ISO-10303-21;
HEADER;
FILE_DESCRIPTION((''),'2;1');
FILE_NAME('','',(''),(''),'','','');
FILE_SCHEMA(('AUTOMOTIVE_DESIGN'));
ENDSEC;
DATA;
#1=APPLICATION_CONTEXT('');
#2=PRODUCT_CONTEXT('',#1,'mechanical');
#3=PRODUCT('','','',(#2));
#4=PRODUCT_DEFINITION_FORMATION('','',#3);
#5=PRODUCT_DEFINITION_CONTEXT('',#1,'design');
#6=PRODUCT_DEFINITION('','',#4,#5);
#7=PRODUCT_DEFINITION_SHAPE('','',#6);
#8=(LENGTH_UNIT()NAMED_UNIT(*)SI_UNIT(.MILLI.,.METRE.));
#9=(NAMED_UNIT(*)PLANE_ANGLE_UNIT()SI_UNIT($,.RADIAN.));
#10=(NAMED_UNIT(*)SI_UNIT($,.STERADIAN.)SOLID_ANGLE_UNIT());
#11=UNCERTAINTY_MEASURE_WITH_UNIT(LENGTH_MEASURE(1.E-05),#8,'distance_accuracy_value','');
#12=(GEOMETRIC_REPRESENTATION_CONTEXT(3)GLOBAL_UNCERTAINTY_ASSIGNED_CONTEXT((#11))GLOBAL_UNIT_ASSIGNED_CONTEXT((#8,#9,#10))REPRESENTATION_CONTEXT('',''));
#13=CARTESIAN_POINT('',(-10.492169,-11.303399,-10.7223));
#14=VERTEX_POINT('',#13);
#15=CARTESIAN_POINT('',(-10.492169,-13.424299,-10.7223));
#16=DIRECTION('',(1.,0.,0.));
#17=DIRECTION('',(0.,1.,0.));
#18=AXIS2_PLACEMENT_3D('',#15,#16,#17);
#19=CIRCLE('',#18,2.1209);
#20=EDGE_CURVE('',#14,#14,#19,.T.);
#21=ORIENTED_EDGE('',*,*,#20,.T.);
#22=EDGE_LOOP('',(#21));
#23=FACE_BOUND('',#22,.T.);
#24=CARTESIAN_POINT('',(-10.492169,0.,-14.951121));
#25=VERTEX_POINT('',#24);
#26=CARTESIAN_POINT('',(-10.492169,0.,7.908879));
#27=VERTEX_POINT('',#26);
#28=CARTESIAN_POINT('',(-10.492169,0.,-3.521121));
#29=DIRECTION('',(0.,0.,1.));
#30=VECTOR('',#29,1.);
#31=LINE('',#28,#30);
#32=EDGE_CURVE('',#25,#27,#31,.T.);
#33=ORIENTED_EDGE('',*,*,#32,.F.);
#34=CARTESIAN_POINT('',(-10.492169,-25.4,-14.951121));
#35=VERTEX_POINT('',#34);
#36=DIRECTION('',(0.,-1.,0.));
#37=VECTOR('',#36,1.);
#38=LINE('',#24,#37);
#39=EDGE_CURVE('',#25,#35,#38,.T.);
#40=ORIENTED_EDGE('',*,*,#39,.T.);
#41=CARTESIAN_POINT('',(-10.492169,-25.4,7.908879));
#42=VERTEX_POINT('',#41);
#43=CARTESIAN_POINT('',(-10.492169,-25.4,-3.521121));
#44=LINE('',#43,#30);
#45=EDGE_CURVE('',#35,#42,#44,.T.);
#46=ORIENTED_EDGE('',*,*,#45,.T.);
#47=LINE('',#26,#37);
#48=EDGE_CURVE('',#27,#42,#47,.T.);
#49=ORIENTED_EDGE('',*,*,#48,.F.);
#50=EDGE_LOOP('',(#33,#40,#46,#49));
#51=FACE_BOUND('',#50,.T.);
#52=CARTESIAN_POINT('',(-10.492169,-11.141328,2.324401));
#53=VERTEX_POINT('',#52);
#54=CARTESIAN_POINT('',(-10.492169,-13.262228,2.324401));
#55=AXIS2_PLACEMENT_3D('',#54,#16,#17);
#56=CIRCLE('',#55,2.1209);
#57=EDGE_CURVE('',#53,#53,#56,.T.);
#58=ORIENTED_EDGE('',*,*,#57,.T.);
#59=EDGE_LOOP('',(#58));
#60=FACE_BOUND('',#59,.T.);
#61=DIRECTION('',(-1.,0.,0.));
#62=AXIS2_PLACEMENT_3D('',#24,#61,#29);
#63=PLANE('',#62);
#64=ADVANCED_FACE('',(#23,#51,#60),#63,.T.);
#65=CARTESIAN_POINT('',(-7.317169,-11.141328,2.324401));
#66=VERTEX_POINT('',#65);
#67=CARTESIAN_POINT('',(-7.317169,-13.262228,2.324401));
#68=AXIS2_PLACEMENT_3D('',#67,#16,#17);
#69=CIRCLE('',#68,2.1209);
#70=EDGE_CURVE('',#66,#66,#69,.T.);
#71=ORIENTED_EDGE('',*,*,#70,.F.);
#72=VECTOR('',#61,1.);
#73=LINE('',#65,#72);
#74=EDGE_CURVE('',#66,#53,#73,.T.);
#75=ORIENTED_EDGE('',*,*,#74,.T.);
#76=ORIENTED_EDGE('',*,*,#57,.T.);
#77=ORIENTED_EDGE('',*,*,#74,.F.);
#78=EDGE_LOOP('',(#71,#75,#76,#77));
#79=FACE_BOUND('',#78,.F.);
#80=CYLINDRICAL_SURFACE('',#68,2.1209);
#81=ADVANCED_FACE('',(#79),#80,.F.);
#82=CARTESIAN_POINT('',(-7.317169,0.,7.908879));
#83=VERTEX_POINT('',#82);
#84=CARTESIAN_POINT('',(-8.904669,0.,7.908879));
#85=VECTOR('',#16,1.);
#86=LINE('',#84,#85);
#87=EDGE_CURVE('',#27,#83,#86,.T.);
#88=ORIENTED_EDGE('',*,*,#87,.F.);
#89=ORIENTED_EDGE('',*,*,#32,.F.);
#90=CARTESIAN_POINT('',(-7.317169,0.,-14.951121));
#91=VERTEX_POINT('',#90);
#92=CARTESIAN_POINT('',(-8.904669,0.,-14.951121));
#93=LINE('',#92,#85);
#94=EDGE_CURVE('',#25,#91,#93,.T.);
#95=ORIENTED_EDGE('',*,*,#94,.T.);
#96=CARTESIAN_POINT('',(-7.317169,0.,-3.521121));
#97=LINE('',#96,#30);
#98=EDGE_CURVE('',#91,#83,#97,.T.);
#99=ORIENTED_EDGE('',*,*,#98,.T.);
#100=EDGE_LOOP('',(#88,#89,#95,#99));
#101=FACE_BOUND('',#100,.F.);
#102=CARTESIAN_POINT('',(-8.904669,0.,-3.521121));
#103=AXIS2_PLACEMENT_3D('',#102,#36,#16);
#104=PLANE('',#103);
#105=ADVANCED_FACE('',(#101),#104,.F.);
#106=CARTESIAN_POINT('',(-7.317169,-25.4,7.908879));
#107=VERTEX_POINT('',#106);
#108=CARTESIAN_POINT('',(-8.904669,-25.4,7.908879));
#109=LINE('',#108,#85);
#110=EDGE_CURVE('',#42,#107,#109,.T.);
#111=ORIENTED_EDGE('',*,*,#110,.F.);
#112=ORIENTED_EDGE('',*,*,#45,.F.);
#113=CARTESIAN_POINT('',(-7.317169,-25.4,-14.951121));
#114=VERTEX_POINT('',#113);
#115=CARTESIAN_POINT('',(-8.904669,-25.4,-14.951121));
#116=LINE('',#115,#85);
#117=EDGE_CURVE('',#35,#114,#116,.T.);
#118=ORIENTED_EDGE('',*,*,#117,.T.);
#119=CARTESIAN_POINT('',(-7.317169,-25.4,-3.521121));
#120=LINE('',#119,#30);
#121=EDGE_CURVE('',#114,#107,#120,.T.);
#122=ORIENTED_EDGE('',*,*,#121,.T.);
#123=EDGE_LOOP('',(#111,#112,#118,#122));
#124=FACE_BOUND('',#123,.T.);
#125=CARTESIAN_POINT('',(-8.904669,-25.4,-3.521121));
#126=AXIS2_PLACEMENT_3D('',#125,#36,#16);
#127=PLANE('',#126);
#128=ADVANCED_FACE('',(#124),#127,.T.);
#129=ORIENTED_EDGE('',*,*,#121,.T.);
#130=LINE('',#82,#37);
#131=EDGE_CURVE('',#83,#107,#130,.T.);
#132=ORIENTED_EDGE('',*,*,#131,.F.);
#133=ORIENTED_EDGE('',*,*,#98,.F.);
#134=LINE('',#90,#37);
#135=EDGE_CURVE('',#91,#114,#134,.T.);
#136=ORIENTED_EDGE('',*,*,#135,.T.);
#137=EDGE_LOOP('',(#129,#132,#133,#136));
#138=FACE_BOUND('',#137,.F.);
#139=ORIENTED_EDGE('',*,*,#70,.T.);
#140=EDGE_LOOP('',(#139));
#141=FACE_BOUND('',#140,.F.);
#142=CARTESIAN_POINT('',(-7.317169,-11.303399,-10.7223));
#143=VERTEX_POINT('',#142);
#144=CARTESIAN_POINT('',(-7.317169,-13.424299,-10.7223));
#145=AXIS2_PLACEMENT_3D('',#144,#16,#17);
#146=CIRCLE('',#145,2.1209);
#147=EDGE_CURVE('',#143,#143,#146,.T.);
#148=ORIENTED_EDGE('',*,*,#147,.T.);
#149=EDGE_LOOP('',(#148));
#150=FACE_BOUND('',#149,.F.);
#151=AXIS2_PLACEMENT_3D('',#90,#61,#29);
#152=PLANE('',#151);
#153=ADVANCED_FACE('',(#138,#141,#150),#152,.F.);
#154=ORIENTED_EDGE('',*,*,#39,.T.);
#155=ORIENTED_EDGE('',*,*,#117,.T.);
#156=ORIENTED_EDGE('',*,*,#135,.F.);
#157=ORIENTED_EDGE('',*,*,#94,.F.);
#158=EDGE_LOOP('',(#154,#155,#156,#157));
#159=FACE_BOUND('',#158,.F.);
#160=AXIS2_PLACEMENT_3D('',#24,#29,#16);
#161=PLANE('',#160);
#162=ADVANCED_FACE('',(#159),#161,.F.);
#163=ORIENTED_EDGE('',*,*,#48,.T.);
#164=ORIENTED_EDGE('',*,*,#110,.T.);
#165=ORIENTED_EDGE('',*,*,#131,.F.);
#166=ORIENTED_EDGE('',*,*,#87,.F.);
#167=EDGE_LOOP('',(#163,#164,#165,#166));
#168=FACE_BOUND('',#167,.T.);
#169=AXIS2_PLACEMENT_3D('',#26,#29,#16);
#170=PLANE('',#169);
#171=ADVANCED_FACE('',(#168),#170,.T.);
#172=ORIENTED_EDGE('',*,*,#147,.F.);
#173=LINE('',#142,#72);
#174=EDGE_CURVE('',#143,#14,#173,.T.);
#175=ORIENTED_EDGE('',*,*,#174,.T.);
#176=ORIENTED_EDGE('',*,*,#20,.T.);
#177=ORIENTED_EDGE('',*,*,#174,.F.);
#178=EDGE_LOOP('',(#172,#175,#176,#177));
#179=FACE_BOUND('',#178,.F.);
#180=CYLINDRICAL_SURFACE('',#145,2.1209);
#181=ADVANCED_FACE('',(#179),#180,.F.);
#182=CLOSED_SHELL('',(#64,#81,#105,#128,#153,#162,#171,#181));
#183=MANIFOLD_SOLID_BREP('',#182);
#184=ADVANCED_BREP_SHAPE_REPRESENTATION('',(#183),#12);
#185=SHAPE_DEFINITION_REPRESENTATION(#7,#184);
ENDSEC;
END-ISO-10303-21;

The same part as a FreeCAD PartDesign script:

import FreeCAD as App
import Part
import Sketcher
from FreeCAD import Vector
Q = App.Units.Quantity


def add_polygon(sketch, points):
    """Adds a closed chain of lines whose ends are joined by coincident constraints."""
    first, n = sketch.GeometryCount, len(points)
    for a, b in zip(points, points[1:] + points[:1]):
        sketch.addGeometry(Part.LineSegment(App.Vector(*a, 0), App.Vector(*b, 0)), False)
    for i in range(n):
        sketch.addConstraint(Sketcher.Constraint("Coincident", first + i, 2, first + (i + 1) % n, 1))

doc = App.newDocument("Part")
body = doc.addObject("PartDesign::Body", "Body")

sketch1 = doc.addObject("Sketcher::SketchObject", "Sketch")
body.addObject(sketch1)
sketch1.AttachmentSupport = (doc.XZ_Plane, [""])
sketch1.MapMode = "FlatFace"
add_polygon(sketch1, [(-10.5, 7.9), (-10.5, -15), (-7.3, -15), (-7.3, 7.9)])
sketch1.addConstraint(Sketcher.Constraint("Vertical", 0))
sketch1.addConstraint(Sketcher.Constraint("Horizontal", 1))
sketch1.addConstraint(Sketcher.Constraint("Vertical", 2))
sketch1.addConstraint(Sketcher.Constraint("Horizontal", 3))
sketch1.addConstraint(Sketcher.Constraint("DistanceY", 0, 2, 0, 1, Q("0.9 in")))
sketch1.addConstraint(Sketcher.Constraint("DistanceX", 1, 1, 1, 2, Q("0.125 in")))
sketch1.addConstraint(Sketcher.Constraint("DistanceX", 0, 2, -1, 1, Q("10.492169 mm")))
sketch1.addConstraint(Sketcher.Constraint("DistanceY", 0, 2, -1, 1, Q("14.951121 mm")))
pad1 = doc.addObject("PartDesign::Pad", "Pad")
body.addObject(pad1)
pad1.Profile = sketch1
pad1.Length = Q("1 in")

sketch2 = doc.addObject("Sketcher::SketchObject", "Sketch001")
body.addObject(sketch2)
sketch2.AttachmentSupport = (doc.YZ_Plane, [""])
sketch2.MapMode = "FlatFace"
sketch2.AttachmentOffset = App.Placement(Vector(0, 0, -7.317169), App.Rotation())
sketch2.addGeometry(Part.Circle(Vector(-13.3, 2.3, 0), Vector(0, 0, 1), 2.1), False)
sketch2.addGeometry(Part.Circle(Vector(-13.4, -10.7, 0), Vector(0, 0, 1), 2.1), False)
sketch2.addConstraint(Sketcher.Constraint("Equal", 0, 1))
sketch2.addConstraint(Sketcher.Constraint("Diameter", 0, Q("0.167 in")))
sketch2.addConstraint(Sketcher.Constraint("DistanceY", -1, 1, 0, 3, Q("2.324401 mm")))
sketch2.addConstraint(Sketcher.Constraint("DistanceX", 1, 3, -1, 1, Q("13.424299 mm")))
sketch2.addConstraint(Sketcher.Constraint("DistanceY", 1, 3, -1, 1, Q("10.7223 mm")))
sketch2.addConstraint(Sketcher.Constraint("DistanceX", 1, 3, 0, 3, Q("0.162071 mm")))
pocket1 = doc.addObject("PartDesign::Pocket", "Pocket")
body.addObject(pocket1)
pocket1.Profile = sketch2
pocket1.Length = Q("0.167 in")

doc.recompute()
